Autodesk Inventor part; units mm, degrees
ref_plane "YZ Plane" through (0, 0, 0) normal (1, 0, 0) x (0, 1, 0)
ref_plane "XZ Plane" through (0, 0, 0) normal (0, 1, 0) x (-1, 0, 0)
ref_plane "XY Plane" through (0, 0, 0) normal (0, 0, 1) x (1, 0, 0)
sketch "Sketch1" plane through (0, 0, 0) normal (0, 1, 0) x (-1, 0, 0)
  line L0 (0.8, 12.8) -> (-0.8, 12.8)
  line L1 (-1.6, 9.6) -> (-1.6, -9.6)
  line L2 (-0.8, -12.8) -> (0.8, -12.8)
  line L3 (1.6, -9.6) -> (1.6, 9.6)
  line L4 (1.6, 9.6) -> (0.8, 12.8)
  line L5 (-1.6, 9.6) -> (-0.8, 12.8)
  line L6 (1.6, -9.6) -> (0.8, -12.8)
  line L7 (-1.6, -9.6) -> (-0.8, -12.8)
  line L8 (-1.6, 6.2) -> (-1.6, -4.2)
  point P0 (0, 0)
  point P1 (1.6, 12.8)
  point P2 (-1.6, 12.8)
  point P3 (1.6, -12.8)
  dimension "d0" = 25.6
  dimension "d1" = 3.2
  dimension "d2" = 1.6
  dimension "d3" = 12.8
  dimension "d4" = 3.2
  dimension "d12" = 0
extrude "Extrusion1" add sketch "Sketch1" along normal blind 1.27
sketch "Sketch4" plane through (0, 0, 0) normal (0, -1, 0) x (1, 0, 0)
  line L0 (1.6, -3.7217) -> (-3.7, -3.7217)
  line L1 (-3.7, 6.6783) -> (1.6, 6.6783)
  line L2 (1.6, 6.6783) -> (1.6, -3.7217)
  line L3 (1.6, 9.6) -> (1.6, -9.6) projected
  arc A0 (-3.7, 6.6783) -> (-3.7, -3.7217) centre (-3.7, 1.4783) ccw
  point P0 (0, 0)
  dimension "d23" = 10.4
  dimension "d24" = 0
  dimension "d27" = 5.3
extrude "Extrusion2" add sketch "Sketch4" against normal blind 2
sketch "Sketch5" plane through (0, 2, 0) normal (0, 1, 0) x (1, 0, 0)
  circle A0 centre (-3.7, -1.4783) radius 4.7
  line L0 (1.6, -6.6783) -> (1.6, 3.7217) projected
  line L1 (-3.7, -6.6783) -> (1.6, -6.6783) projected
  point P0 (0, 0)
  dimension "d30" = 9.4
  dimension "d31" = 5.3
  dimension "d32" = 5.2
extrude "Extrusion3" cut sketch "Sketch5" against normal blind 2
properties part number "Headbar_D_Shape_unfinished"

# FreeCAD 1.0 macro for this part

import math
import FreeCAD as App
import Part
import Sketcher
from FreeCAD import Vector

doc = App.newDocument("Part")
body = doc.addObject("PartDesign::Body", "Body")

sketch1 = body.newObject("Sketcher::SketchObject", "Sketch")
sketch1.AttachmentSupport = (doc.getObject("XZ_Plane"), [""])
sketch1.MapMode = "FlatFace"
sketch1.addGeometry([
    Part.LineSegment(Vector(-1.6, 9.6, 0), Vector(-0.8, 12.8, 0)),
    Part.LineSegment(Vector(-0.8, 12.8, 0), Vector(0.8, 12.8, 0)),
    Part.LineSegment(Vector(0.8, 12.8, 0), Vector(1.6, 9.6, 0)),
    Part.LineSegment(Vector(1.6, 9.6, 0), Vector(1.6, -9.6, 0)),
    Part.LineSegment(Vector(1.6, -9.6, 0), Vector(0.8, -12.8, 0)),
    Part.LineSegment(Vector(0.8, -12.8, 0), Vector(-0.8, -12.8, 0)),
    Part.LineSegment(Vector(-0.8, -12.8, 0), Vector(-1.6, -9.6, 0)),
    Part.LineSegment(Vector(-1.6, -9.6, 0), Vector(-1.6, 9.6, 0)),
], False)
sketch1.addConstraint([
    Sketcher.Constraint("Coincident", 0, 2, 1, 1),
    Sketcher.Constraint("Coincident", 1, 2, 2, 1),
    Sketcher.Constraint("Coincident", 2, 2, 3, 1),
    Sketcher.Constraint("Coincident", 3, 2, 4, 1),
    Sketcher.Constraint("Coincident", 4, 2, 5, 1),
    Sketcher.Constraint("Coincident", 5, 2, 6, 1),
    Sketcher.Constraint("Coincident", 6, 2, 7, 1),
    Sketcher.Constraint("Coincident", 7, 2, 0, 1),
    Sketcher.Constraint("Horizontal", 1),
    Sketcher.Constraint("Vertical", 3),
    Sketcher.Constraint("Horizontal", 5),
    Sketcher.Constraint("Vertical", 7),
    Sketcher.Constraint("Symmetric", 0, 2, 4, 2, -1, 1),
    Sketcher.Constraint("Symmetric", 2, 2, 6, 2, -1, 1),
    Sketcher.Constraint("Parallel", 0, 4),
    Sketcher.Constraint("Parallel", 2, 6),
    Sketcher.Constraint("Horizontal", 3, 2, 6, 2),
    Sketcher.Constraint("Vertical", 1, 2, 4, 2),
    Sketcher.Constraint("DistanceX", 1, 1, 1, 2, 1.6),
    Sketcher.Constraint("DistanceY", -1, 1, 0, 2, 12.8),
    Sketcher.Constraint("DistanceX", -1, 1, 2, 2, 1.6),
    Sketcher.Constraint("DistanceY", 2, 2, 1, 2, 3.2),
])
pad1 = body.newObject("PartDesign::Pad", "Pad")
pad1.Profile = sketch1
pad1.Length = 1.27
pad1.Reversed = True

sketch2 = body.newObject("Sketcher::SketchObject", "Sketch001")
sketch2.AttachmentSupport = (doc.getObject("XZ_Plane"), [""])
sketch2.MapMode = "FlatFace"
sketch2.addGeometry([
    Part.LineSegment(Vector(-4, -4, 0), Vector(2, -4, 0)),
    Part.LineSegment(Vector(2, -4, 0), Vector(2, 7, 0)),
    Part.LineSegment(Vector(2, 7, 0), Vector(-4, 7, 0)),
    Part.ArcOfCircle(Part.Circle(Vector(-4, 1, 0), Vector(0, 0, 1), 5), math.radians(90), math.radians(270)),
], False)
sketch2.addConstraint([
    Sketcher.Constraint("Coincident", 0, 2, 1, 1),
    Sketcher.Constraint("Coincident", 1, 2, 2, 1),
    Sketcher.Constraint("Tangent", 2, 2, 3, 1),
    Sketcher.Constraint("Tangent", 3, 2, 0, 1),
    Sketcher.Constraint("Horizontal", 0),
    Sketcher.Constraint("Vertical", 1),
    Sketcher.Constraint("Horizontal", 2),
    Sketcher.Constraint("Radius", 3, 5.2),
    Sketcher.Constraint("DistanceX", 0, 1, 0, 2, 5.3),
    Sketcher.Constraint("DistanceX", 3, 3, -1, 1, 3.7),
    Sketcher.Constraint("DistanceY", -1, 1, 3, 3, 1.4783),
])
pad2 = body.newObject("PartDesign::Pad", "Pad001")
pad2.Profile = sketch2
pad2.Length = 2
pad2.Reversed = True

sketch3 = body.newObject("Sketcher::SketchObject", "Sketch002")
sketch3.AttachmentSupport = (doc.getObject("XZ_Plane"), [""])
sketch3.MapMode = "FlatFace"
sketch3.AttachmentOffset = App.Placement(Vector(0, 0, -2), App.Rotation())
sketch3.addGeometry(Part.Circle(Vector(-3.7, 1.5, 0), Vector(0, 0, 1), 4.7), False)
sketch3.addConstraint([
    Sketcher.Constraint("Diameter", 0, 9.4),
    Sketcher.Constraint("DistanceX", 0, 3, -1, 1, 3.7),
    Sketcher.Constraint("DistanceY", -1, 1, 0, 3, 1.4783),
])
pocket1 = body.newObject("PartDesign::Pocket", "Pocket")
pocket1.Profile = sketch3
pocket1.Length = 2
pocket1.Reversed = True

doc.recompute()
